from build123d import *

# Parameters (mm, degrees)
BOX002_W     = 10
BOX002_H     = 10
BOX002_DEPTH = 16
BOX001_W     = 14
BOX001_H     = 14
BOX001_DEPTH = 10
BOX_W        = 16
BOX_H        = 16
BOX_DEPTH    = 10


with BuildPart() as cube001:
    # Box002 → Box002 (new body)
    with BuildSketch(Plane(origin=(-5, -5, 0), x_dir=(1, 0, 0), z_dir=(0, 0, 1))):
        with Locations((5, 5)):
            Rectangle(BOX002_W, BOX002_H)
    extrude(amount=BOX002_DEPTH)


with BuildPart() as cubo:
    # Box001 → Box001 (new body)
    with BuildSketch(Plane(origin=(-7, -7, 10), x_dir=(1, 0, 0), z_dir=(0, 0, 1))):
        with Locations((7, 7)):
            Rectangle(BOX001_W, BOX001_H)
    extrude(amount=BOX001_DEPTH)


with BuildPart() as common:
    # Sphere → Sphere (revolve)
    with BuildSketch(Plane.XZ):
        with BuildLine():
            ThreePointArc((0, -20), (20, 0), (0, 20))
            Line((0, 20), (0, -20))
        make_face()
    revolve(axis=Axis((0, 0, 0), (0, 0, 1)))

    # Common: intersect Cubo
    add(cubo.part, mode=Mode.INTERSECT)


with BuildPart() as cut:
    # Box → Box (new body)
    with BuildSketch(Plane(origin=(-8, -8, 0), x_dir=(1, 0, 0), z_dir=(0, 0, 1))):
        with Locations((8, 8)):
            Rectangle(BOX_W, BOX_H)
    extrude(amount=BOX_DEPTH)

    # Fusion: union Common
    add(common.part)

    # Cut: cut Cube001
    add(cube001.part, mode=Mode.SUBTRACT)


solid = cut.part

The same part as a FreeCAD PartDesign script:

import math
import FreeCAD as App
import Part
import Sketcher
Q = App.Units.Quantity


def add_polygon(sketch, points):
    """Adds a closed chain of lines whose ends are joined by coincident constraints."""
    first, n = sketch.GeometryCount, len(points)
    for a, b in zip(points, points[1:] + points[:1]):
        sketch.addGeometry(Part.LineSegment(App.Vector(*a, 0), App.Vector(*b, 0)), False)
    for i in range(n):
        sketch.addConstraint(Sketcher.Constraint("Coincident", first + i, 2, first + (i + 1) % n, 1))

doc = App.newDocument("Part")
body = doc.addObject("PartDesign::Body", "Body")

sketch1 = body.newObject("Sketcher::SketchObject", "Sketch")
sketch1.AttachmentSupport = (doc.getObject("XY_Plane"), [""])
sketch1.MapMode = "FlatFace"
add_polygon(sketch1, [(-5, 5), (-5, -5), (5, -5), (5, 5)])
sketch1.addConstraint([
    Sketcher.Constraint("Vertical", 0),
    Sketcher.Constraint("Horizontal", 1),
    Sketcher.Constraint("Vertical", 2),
    Sketcher.Constraint("Horizontal", 3),
    Sketcher.Constraint("Symmetric", 0, 2, 2, 2, -1, 1),
    Sketcher.Constraint("Equal", 3, 0),
    Sketcher.Constraint("DistanceX", 1, 1, 1, 2, Q("10 mm")),
])
pad1 = body.newObject("PartDesign::Pad", "Pad")
pad1.Profile = sketch1
pad1.Length = 16
body2 = doc.addObject("PartDesign::Body", "Body001")

sketch2 = body2.newObject("Sketcher::SketchObject", "Sketch001")
sketch2.AttachmentSupport = (doc.getObject("XY_Plane001"), [""])
sketch2.MapMode = "FlatFace"
sketch2.AttachmentOffset = App.Placement(App.Vector(0, 0, 10), App.Rotation())
add_polygon(sketch2, [(-7, 7), (-7, -7), (7, -7), (7, 7)])
sketch2.addConstraint([
    Sketcher.Constraint("Vertical", 0),
    Sketcher.Constraint("Horizontal", 1),
    Sketcher.Constraint("Vertical", 2),
    Sketcher.Constraint("Horizontal", 3),
    Sketcher.Constraint("Symmetric", 0, 2, 2, 2, -1, 1),
    Sketcher.Constraint("Equal", 3, 0),
    Sketcher.Constraint("DistanceX", 1, 1, 1, 2, Q("14 mm")),
])
pad2 = body2.newObject("PartDesign::Pad", "Pad001")
pad2.Profile = sketch2
pad2.Length = 10
body3 = doc.addObject("PartDesign::Body", "Body002")

sketch3 = body3.newObject("Sketcher::SketchObject", "Sketch002")
sketch3.AttachmentSupport = (doc.getObject("XZ_Plane002"), [""])
sketch3.MapMode = "FlatFace"
sketch3.addGeometry([
    Part.ArcOfCircle(Part.Circle(App.Vector(0, 0, 0), App.Vector(0, 0, 1), 20), math.radians(-90), math.radians(90)),
    Part.LineSegment(App.Vector(0, 20, 0), App.Vector(0, -20, 0)),
], False)
sketch3.addConstraint([
    Sketcher.Constraint("Coincident", 0, 1, 1, 2),
    Sketcher.Constraint("Coincident", 1, 1, 0, 2),
    Sketcher.Constraint("Vertical", 1),
    Sketcher.Constraint("Coincident", 0, 3, -1, 1),
    Sketcher.Constraint("PointOnObject", 0, 1, -2),
    Sketcher.Constraint("Radius", 0, Q("20 mm")),
])
revolution = body3.newObject("PartDesign::Revolution", "Revolution")
revolution.Profile = sketch3
revolution.ReferenceAxis = (sketch3, ["V_Axis"])
revolution.Angle = 360
doc.recompute()

boolean = body3.newObject("PartDesign::Boolean", "Boolean")
boolean.Type = "Common"
boolean.addObjects([body2])
body4 = doc.addObject("PartDesign::Body", "Body003")

sketch4 = body4.newObject("Sketcher::SketchObject", "Sketch003")
sketch4.AttachmentSupport = (doc.getObject("XY_Plane003"), [""])
sketch4.MapMode = "FlatFace"
add_polygon(sketch4, [(-8, 8), (-8, -8), (8, -8), (8, 8)])
sketch4.addConstraint([
    Sketcher.Constraint("Vertical", 0),
    Sketcher.Constraint("Horizontal", 1),
    Sketcher.Constraint("Vertical", 2),
    Sketcher.Constraint("Horizontal", 3),
    Sketcher.Constraint("Symmetric", 0, 2, 2, 2, -1, 1),
    Sketcher.Constraint("Equal", 3, 0),
    Sketcher.Constraint("DistanceX", 1, 1, 1, 2, Q("16 mm")),
])
pad3 = body4.newObject("PartDesign::Pad", "Pad002")
pad3.Profile = sketch4
pad3.Length = 10
doc.recompute()

boolean2 = body4.newObject("PartDesign::Boolean", "Boolean001")
boolean2.Type = "Fuse"
boolean2.addObjects([body3])
doc.recompute()

boolean3 = body4.newObject("PartDesign::Boolean", "Boolean002")
boolean3.Type = "Cut"
boolean3.addObjects([body])

doc.recompute()
